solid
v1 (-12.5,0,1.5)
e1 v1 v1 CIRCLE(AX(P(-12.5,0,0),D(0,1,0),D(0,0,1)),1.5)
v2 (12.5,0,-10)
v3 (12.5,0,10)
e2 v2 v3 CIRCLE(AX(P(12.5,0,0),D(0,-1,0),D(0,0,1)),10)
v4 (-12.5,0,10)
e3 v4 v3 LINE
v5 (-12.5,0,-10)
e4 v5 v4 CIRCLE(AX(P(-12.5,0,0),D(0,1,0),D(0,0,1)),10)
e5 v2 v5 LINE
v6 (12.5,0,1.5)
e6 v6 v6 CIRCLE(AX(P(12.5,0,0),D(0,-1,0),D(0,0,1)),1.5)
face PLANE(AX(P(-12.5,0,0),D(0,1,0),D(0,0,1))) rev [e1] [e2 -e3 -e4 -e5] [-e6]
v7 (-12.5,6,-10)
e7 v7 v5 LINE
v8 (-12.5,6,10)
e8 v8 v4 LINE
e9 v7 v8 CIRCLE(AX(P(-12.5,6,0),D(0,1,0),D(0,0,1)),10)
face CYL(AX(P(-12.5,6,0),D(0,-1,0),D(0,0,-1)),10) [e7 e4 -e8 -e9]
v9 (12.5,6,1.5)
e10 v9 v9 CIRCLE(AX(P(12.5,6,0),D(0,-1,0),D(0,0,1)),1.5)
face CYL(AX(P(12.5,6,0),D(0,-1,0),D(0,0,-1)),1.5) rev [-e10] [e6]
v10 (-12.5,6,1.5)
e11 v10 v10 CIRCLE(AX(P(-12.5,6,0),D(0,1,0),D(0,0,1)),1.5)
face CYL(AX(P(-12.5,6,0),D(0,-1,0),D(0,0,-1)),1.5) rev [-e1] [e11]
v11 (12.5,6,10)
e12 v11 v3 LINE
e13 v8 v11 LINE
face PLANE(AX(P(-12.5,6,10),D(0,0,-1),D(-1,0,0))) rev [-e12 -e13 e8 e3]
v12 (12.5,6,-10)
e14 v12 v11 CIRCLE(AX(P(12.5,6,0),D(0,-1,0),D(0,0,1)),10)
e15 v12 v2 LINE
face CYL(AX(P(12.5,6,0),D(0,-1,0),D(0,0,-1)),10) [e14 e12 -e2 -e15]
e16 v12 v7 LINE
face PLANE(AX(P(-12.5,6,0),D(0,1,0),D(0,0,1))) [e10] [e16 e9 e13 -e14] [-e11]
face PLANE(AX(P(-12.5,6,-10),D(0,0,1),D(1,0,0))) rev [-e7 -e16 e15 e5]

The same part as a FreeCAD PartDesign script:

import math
import FreeCAD as App
import Part
import Sketcher

V = App.Vector
Q = App.Units.Quantity

doc = App.newDocument("Part")
body = doc.addObject("PartDesign::Body", "Body")

sketch1 = body.newObject("Sketcher::SketchObject", "Sketch")
sketch1.AttachmentSupport = (doc.getObject("XZ_Plane"), [""])
sketch1.MapMode = "FlatFace"
sketch1.addGeometry([
    Part.LineSegment(V(0, -10, 0), V(-12.5, -10, 0)),
    Part.ArcOfCircle(Part.Circle(V(-12.5, 0, 0), V(0, 0, 1), 10), math.radians(90), math.radians(270)),
    Part.LineSegment(V(-12.5, 10, 0), V(0, 10, 0)),
    Part.LineSegment(V(0, 10, 0), V(0, -10, 0)),
    Part.Circle(V(-12.5, 0, 0), V(0, 0, 1), 1.5),
], False)
sketch1.addConstraint([
    Sketcher.Constraint("Tangent", 0, 2, 1, 2),
    Sketcher.Constraint("Tangent", 1, 1, 2, 1),
    Sketcher.Constraint("Coincident", 2, 2, 3, 1),
    Sketcher.Constraint("Coincident", 3, 2, 0, 1),
    Sketcher.Constraint("Horizontal", 0),
    Sketcher.Constraint("Horizontal", 2),
    Sketcher.Constraint("Vertical", 3),
    Sketcher.Constraint("Coincident", 4, 3, 1, 3),
    Sketcher.Constraint("Symmetric", 2, 2, 3, 2, -1, 1),
    Sketcher.Constraint("Diameter", 4, Q("3 mm")),
    Sketcher.Constraint("Radius", 1, Q("10 mm")),
    Sketcher.Constraint("DistanceX", 0, 2, 0, 1, Q("12.5 mm")),
])
pad1 = body.newObject("PartDesign::Pad", "Pad")
pad1.Profile = sketch1
pad1.Length = 6
pad1.Reversed = True
doc.recompute()

mirrored = body.newObject("PartDesign::Mirrored", "Mirrored")
mirrored.Originals = [pad1]
mirrored.MirrorPlane = (doc.getObject("YZ_Plane"), [""])
body.Tip = mirrored

doc.recompute()
